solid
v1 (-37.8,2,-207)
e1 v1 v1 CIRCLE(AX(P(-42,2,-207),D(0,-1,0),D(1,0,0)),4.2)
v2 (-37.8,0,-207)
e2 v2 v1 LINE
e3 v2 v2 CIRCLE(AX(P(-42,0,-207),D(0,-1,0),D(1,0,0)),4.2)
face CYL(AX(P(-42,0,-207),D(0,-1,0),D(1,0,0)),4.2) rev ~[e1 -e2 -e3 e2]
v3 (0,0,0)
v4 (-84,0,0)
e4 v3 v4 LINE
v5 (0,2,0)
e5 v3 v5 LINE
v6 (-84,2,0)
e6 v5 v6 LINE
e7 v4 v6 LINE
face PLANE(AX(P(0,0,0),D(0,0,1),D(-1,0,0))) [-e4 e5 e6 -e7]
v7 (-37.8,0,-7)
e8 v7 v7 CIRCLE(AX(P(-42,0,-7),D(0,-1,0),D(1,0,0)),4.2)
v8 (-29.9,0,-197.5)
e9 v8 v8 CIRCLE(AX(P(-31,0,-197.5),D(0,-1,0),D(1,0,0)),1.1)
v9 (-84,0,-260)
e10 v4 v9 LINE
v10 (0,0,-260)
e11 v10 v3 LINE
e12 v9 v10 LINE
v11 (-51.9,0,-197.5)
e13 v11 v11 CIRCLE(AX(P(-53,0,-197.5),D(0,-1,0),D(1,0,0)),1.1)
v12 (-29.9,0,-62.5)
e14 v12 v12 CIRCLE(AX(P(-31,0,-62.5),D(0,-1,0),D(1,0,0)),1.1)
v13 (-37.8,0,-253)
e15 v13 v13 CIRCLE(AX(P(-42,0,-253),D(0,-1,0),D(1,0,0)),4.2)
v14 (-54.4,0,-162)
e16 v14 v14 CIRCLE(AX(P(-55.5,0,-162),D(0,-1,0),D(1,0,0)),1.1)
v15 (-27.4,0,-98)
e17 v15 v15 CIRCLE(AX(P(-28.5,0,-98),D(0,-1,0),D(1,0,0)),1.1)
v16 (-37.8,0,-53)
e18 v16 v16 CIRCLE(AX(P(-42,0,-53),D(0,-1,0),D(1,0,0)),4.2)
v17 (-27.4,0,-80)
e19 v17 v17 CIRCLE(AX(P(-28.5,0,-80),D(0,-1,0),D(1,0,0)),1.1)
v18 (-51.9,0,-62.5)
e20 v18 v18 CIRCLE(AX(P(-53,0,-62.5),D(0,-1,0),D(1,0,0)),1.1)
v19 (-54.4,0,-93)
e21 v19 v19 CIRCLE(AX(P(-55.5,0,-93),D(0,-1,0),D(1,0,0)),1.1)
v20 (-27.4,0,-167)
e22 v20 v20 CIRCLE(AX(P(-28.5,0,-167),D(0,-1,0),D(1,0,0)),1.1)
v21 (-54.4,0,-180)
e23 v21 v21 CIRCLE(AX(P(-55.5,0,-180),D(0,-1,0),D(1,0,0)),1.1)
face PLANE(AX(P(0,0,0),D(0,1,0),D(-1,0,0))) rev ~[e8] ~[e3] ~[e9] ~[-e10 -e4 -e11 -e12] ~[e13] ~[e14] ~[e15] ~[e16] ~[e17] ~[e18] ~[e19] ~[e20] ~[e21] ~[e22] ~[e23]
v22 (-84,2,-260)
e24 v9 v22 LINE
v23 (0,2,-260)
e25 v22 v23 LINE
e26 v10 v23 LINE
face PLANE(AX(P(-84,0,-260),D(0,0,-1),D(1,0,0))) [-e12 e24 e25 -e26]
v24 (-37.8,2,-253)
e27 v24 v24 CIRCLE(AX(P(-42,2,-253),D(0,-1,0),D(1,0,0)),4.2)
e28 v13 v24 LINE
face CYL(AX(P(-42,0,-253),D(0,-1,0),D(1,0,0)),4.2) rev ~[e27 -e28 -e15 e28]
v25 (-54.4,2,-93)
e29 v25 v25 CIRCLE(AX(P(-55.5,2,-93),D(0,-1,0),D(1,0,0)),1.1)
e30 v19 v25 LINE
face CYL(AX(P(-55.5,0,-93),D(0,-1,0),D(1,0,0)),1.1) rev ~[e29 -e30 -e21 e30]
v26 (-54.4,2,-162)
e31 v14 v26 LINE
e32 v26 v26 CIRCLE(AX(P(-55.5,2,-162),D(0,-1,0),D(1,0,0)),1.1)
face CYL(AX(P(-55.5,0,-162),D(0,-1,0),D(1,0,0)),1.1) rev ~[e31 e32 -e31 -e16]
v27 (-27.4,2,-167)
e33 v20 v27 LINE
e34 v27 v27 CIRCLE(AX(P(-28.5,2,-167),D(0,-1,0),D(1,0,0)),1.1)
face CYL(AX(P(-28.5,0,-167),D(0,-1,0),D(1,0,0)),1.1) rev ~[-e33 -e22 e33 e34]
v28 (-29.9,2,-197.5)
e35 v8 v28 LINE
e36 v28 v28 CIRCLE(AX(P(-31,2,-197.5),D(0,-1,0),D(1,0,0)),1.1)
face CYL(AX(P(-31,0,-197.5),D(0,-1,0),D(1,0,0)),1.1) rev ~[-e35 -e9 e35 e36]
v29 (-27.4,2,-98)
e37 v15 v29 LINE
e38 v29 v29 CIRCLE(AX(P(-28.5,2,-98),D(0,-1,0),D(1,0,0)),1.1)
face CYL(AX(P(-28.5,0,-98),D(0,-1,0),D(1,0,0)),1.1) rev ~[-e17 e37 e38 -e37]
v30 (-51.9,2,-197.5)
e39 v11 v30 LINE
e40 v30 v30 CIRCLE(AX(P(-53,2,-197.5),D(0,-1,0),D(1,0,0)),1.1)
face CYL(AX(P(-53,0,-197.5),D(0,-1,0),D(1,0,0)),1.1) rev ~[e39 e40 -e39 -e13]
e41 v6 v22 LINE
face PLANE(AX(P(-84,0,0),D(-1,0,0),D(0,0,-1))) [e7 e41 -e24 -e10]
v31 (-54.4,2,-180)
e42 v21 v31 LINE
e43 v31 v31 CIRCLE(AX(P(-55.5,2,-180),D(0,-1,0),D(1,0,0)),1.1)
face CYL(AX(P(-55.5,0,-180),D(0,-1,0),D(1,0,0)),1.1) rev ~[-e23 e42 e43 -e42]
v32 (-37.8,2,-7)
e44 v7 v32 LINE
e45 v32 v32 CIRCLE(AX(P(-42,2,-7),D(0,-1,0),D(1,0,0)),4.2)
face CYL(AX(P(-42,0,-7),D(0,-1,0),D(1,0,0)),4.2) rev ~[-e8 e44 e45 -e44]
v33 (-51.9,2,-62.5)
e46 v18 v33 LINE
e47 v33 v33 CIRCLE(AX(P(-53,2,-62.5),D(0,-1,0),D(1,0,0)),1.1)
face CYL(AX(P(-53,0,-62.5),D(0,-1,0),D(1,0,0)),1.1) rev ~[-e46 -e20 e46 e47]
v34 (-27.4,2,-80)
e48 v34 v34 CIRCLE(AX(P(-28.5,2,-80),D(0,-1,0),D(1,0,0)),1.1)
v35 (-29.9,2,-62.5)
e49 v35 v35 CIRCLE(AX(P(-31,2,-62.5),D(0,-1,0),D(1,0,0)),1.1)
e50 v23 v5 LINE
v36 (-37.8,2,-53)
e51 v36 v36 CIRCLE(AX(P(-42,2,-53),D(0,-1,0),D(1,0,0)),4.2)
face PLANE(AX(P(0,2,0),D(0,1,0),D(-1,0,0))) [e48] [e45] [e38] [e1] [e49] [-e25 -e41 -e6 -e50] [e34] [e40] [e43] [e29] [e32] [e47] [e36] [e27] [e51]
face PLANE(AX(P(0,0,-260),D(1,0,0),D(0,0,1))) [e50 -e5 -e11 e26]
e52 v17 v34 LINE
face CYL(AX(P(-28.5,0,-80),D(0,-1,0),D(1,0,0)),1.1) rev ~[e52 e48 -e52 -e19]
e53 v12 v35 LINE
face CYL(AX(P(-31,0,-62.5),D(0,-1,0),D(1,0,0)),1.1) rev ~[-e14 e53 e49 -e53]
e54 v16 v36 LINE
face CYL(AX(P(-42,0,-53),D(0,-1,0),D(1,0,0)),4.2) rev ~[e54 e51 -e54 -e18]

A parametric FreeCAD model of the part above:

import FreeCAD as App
import Part
import Sketcher
from FreeCAD import Vector

doc = App.newDocument("Part")
params = doc.addObject("Spreadsheet::Sheet", "Params")
for row, (alias, value) in enumerate([
    ("sketch1_width", "84 mm"),
    ("sketch1_height", "260 mm"),
    ("pad1_length", "2 mm"),
    ("sketch2_diameter", "8.4 mm"),
    ("sketch2_diameter2", "2.2 mm"),
    ("pocket1_length", "2 mm"),
], start=1):
    params.set(f"A{row}", alias)
    params.set(f"B{row}", "=" + value)
    params.setAlias(f"B{row}", alias)

body = doc.addObject("PartDesign::Body", "Body")

sketch1 = body.newObject("Sketcher::SketchObject", "Sketch")
sketch1.AttachmentSupport = (doc.getObject("XZ_Plane"), [""])
sketch1.MapMode = "FlatFace"
sketch1.addGeometry([
    Part.LineSegment(Vector(-84, 0, 0), Vector(0, 0, 0)),
    Part.LineSegment(Vector(0, 0, 0), Vector(0, -260, 0)),
    Part.LineSegment(Vector(0, -260, 0), Vector(-84, -260, 0)),
    Part.LineSegment(Vector(-84, -260, 0), Vector(-84, 0, 0)),
], False)
sketch1.addConstraint([
    Sketcher.Constraint("Coincident", 0, 2, 1, 1),
    Sketcher.Constraint("Coincident", 1, 2, 2, 1),
    Sketcher.Constraint("Coincident", 2, 2, 3, 1),
    Sketcher.Constraint("Coincident", 3, 2, 0, 1),
    Sketcher.Constraint("Horizontal", 0),
    Sketcher.Constraint("Vertical", 1),
    Sketcher.Constraint("Horizontal", 2),
    Sketcher.Constraint("Vertical", 3),
    Sketcher.Constraint("Coincident", 0, 2, -1, 1),
    Sketcher.Constraint("DistanceX", 0, 1, 0, 2, 84.0),
    Sketcher.Constraint("DistanceY", 1, 2, 1, 1, 260.0),
])
sketch1.setExpression("Constraints[9]", "Params.sketch1_width")
sketch1.setExpression("Constraints[10]", "Params.sketch1_height")
pad1 = body.newObject("PartDesign::Pad", "Pad")
pad1.Profile = sketch1
pad1.setExpression("Length", "Params.pad1_length")
pad1.Reversed = True

sketch2 = body.newObject("Sketcher::SketchObject", "Sketch001")
sketch2.AttachmentSupport = (doc.getObject("XZ_Plane"), [""])
sketch2.MapMode = "FlatFace"
sketch2.addGeometry([
    Part.Circle(Vector(-42, -7, 0), Vector(0, 0, 1), 4.2),
    Part.Circle(Vector(-42, -53, 0), Vector(0, 0, 1), 4.2),
    Part.Circle(Vector(-42, -253, 0), Vector(0, 0, 1), 4.2),
    Part.Circle(Vector(-42, -207, 0), Vector(0, 0, 1), 4.2),
    Part.Circle(Vector(-28.5, -80, 0), Vector(0, 0, 1), 1.1),
    Part.Circle(Vector(-28.5, -98, 0), Vector(0, 0, 1), 1.1),
    Part.Circle(Vector(-55.5, -93, 0), Vector(0, 0, 1), 1.1),
    Part.Circle(Vector(-53, -62.5, 0), Vector(0, 0, 1), 1.1),
    Part.Circle(Vector(-31, -62.5, 0), Vector(0, 0, 1), 1.1),
    Part.Circle(Vector(-31, -197.5, 0), Vector(0, 0, 1), 1.1),
    Part.Circle(Vector(-53, -197.5, 0), Vector(0, 0, 1), 1.1),
    Part.Circle(Vector(-55.5, -180, 0), Vector(0, 0, 1), 1.1),
    Part.Circle(Vector(-55.5, -162, 0), Vector(0, 0, 1), 1.1),
    Part.Circle(Vector(-28.5, -167, 0), Vector(0, 0, 1), 1.1),
], False)
sketch2.addConstraint([
    Sketcher.Constraint("Equal", 0, 1),
    Sketcher.Constraint("Equal", 1, 2),
    Sketcher.Constraint("Equal", 2, 3),
    Sketcher.Constraint("Equal", 4, 5),
    Sketcher.Constraint("Equal", 5, 6),
    Sketcher.Constraint("Equal", 6, 7),
    Sketcher.Constraint("Equal", 7, 8),
    Sketcher.Constraint("Equal", 8, 9),
    Sketcher.Constraint("Equal", 9, 10),
    Sketcher.Constraint("Equal", 10, 11),
    Sketcher.Constraint("Equal", 11, 12),
    Sketcher.Constraint("Equal", 12, 13),
    Sketcher.Constraint("Horizontal", 7, 3, 8, 3),
    Sketcher.Constraint("Horizontal", 9, 3, 10, 3),
    Sketcher.Constraint("Vertical", 0, 3, 1, 3),
    Sketcher.Constraint("Vertical", 1, 3, 2, 3),
    Sketcher.Constraint("Vertical", 2, 3, 3, 3),
    Sketcher.Constraint("Vertical", 4, 3, 5, 3),
    Sketcher.Constraint("Vertical", 8, 3, 9, 3),
    Sketcher.Constraint("Vertical", 7, 3, 10, 3),
    Sketcher.Constraint("Vertical", 6, 3, 11, 3),
    Sketcher.Constraint("Vertical", 11, 3, 12, 3),
    Sketcher.Constraint("Vertical", 5, 3, 13, 3),
    Sketcher.Constraint("Diameter", 0, 8.4),
    Sketcher.Constraint("Diameter", 4, 2.2),
    Sketcher.Constraint("DistanceX", 0, 3, -1, 1, 42.0),
    Sketcher.Constraint("DistanceY", 0, 3, -1, 1, 7.0),
    Sketcher.Constraint("DistanceY", 1, 3, -1, 1, 53.0),
    Sketcher.Constraint("DistanceY", 4, 3, -1, 1, 80.0),
    Sketcher.Constraint("DistanceY", 5, 3, -1, 1, 98.0),
    Sketcher.Constraint("DistanceY", 6, 3, -1, 1, 93.0),
    Sketcher.Constraint("DistanceX", 7, 3, -1, 1, 53.0),
    Sketcher.Constraint("DistanceX", 8, 3, -1, 1, 31.0),
    Sketcher.Constraint("DistanceY", 11, 3, -1, 1, 180.0),
    Sketcher.Constraint("DistanceY", 12, 3, -1, 1, 162.0),
    Sketcher.Constraint("DistanceY", 13, 3, -1, 1, 167.0),
    Sketcher.Constraint("DistanceY", 2, 3, 3, 3, 46.0),
    Sketcher.Constraint("DistanceX", 4, 3, -1, 1, 28.5),
    Sketcher.Constraint("DistanceX", 6, 3, -1, 1, 55.5),
    Sketcher.Constraint("DistanceY", 7, 3, -1, 1, 62.5),
    Sketcher.Constraint("DistanceY", 9, 3, -1, 1, 197.5),
    Sketcher.Constraint("DistanceY", 2, 3, 9, 3, 55.5),
])
sketch2.setExpression("Constraints[23]", "Params.sketch2_diameter")
sketch2.setExpression("Constraints[24]", "Params.sketch2_diameter2")
pocket1 = body.newObject("PartDesign::Pocket", "Pocket")
pocket1.Profile = sketch2
pocket1.setExpression("Length", "Params.pocket1_length")

doc.recompute()
